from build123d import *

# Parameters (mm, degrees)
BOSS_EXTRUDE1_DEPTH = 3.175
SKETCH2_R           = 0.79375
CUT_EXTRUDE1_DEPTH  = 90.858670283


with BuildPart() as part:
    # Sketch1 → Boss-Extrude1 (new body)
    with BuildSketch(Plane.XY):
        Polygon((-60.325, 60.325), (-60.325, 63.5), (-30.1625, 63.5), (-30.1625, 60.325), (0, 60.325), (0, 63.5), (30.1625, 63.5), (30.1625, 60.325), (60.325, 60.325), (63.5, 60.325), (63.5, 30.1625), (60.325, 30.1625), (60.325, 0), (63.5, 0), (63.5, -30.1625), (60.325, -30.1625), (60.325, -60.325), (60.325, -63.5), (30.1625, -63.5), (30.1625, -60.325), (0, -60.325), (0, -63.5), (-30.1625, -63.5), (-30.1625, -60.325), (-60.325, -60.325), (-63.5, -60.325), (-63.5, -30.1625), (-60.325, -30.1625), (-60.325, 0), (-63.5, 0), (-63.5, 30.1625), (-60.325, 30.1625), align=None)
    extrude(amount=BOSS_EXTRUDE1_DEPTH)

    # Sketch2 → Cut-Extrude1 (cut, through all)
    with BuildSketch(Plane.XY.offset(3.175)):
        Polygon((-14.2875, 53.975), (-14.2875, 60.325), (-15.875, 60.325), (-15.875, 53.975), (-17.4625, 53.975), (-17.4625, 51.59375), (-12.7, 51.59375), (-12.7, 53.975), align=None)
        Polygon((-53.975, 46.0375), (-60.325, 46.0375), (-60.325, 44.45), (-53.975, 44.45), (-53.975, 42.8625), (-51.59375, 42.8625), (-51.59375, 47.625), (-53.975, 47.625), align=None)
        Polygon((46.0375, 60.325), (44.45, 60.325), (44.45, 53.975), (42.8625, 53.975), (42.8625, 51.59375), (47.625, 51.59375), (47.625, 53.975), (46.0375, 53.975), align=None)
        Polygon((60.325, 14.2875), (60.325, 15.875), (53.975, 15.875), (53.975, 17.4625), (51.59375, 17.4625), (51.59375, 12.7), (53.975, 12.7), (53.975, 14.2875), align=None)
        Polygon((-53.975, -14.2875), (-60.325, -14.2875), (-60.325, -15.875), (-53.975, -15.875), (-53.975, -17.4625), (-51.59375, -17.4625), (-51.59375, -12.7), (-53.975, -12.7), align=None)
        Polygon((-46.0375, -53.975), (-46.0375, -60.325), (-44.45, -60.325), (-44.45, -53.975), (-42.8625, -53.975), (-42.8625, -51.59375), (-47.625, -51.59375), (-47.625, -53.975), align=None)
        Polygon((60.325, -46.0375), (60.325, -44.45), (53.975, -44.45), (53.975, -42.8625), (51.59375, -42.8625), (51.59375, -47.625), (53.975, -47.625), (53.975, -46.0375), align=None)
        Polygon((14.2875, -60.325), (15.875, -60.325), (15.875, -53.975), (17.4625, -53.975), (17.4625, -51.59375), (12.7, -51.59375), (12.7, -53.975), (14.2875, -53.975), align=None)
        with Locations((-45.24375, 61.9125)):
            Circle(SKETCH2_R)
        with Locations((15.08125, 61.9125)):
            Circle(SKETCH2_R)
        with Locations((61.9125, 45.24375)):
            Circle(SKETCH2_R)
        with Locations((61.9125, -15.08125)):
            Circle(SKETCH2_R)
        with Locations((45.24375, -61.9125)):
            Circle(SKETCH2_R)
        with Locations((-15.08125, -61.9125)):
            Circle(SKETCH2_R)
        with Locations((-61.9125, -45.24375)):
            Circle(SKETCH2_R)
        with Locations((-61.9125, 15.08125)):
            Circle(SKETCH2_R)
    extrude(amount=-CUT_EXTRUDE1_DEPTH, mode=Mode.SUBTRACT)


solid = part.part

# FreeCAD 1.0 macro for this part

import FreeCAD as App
import Part
import Sketcher
Q = App.Units.Quantity


def add_polygon(sketch, points):
    """Adds a closed chain of lines whose ends are joined by coincident constraints."""
    first, n = sketch.GeometryCount, len(points)
    for a, b in zip(points, points[1:] + points[:1]):
        sketch.addGeometry(Part.LineSegment(App.Vector(*a, 0), App.Vector(*b, 0)), False)
    for i in range(n):
        sketch.addConstraint(Sketcher.Constraint("Coincident", first + i, 2, first + (i + 1) % n, 1))

doc = App.newDocument("Part")
body = doc.addObject("PartDesign::Body", "Body")

sketch1 = body.newObject("Sketcher::SketchObject", "Sketch")
sketch1.AttachmentSupport = (doc.getObject("XY_Plane"), [""])
sketch1.MapMode = "FlatFace"
add_polygon(sketch1, [(-60.3, 63.5), (-60.3, 30.2), (-63.5, 30.2), (-63.5, 0), (-60.3, 0), (-60.3, -30.2), (-63.5, -30.2), (-63.5, -60.3), (-30.2, -60.3), (-30.2, -63.5), (0, -63.5), (0, -60.3), (30.2, -60.3), (30.2, -63.5), (60.3, -63.5), (60.3, -30.2), (63.5, -30.2), (63.5, 0), (60.3, 0), (60.3, 30.2), (63.5, 30.2), (63.5, 60.3), (30.2, 60.3), (30.2, 63.5), (0, 63.5), (0, 60.3), (-30.2, 60.3), (-30.2, 63.5)])
sketch1.addConstraint(Sketcher.Constraint("Vertical", 0))
sketch1.addConstraint(Sketcher.Constraint("Horizontal", 1))
sketch1.addConstraint(Sketcher.Constraint("Vertical", 2))
sketch1.addConstraint(Sketcher.Constraint("Horizontal", 3))
sketch1.addConstraint(Sketcher.Constraint("Vertical", 4))
sketch1.addConstraint(Sketcher.Constraint("Horizontal", 5))
sketch1.addConstraint(Sketcher.Constraint("Vertical", 6))
sketch1.addConstraint(Sketcher.Constraint("Horizontal", 7))
sketch1.addConstraint(Sketcher.Constraint("Vertical", 8))
sketch1.addConstraint(Sketcher.Constraint("Horizontal", 9))
sketch1.addConstraint(Sketcher.Constraint("Vertical", 10))
sketch1.addConstraint(Sketcher.Constraint("Horizontal", 11))
sketch1.addConstraint(Sketcher.Constraint("Vertical", 12))
sketch1.addConstraint(Sketcher.Constraint("Horizontal", 13))
sketch1.addConstraint(Sketcher.Constraint("Vertical", 14))
sketch1.addConstraint(Sketcher.Constraint("Horizontal", 15))
sketch1.addConstraint(Sketcher.Constraint("Vertical", 16))
sketch1.addConstraint(Sketcher.Constraint("Horizontal", 17))
sketch1.addConstraint(Sketcher.Constraint("Vertical", 18))
sketch1.addConstraint(Sketcher.Constraint("Horizontal", 19))
sketch1.addConstraint(Sketcher.Constraint("Vertical", 20))
sketch1.addConstraint(Sketcher.Constraint("Horizontal", 21))
sketch1.addConstraint(Sketcher.Constraint("Vertical", 22))
sketch1.addConstraint(Sketcher.Constraint("Horizontal", 23))
sketch1.addConstraint(Sketcher.Constraint("Vertical", 24))
sketch1.addConstraint(Sketcher.Constraint("Horizontal", 25))
sketch1.addConstraint(Sketcher.Constraint("Vertical", 26))
sketch1.addConstraint(Sketcher.Constraint("Horizontal", 27))
sketch1.addConstraint(Sketcher.Constraint("Symmetric", 0, 2, 14, 2, -1, 1))
sketch1.addConstraint(Sketcher.Constraint("Symmetric", 2, 2, 16, 2, -1, 1))
sketch1.addConstraint(Sketcher.Constraint("Symmetric", 4, 2, 18, 2, -1, 1))
sketch1.addConstraint(Sketcher.Constraint("Symmetric", 6, 2, 20, 2, -1, 1))
sketch1.addConstraint(Sketcher.Constraint("Symmetric", 8, 2, 22, 2, -1, 1))
sketch1.addConstraint(Sketcher.Constraint("Symmetric", 10, 2, 24, 2, -1, 1))
sketch1.addConstraint(Sketcher.Constraint("Symmetric", 12, 2, 26, 2, -1, 1))
sketch1.addConstraint(Sketcher.Constraint("Symmetric", 7, 2, 11, 2, -2))
sketch1.addConstraint(Sketcher.Constraint("Symmetric", 4, 2, 14, 2, -2))
sketch1.addConstraint(Sketcher.Constraint("PointOnObject", 2, 2, -1))
sketch1.addConstraint(Sketcher.Constraint("PointOnObject", 9, 2, -2))
sketch1.addConstraint(Sketcher.Constraint("Horizontal", 9, 2, 12, 2))
sketch1.addConstraint(Sketcher.Constraint("Vertical", 2, 2, 5, 2))
sketch1.addConstraint(Sketcher.Constraint("Equal", 11, 13))
sketch1.addConstraint(Sketcher.Constraint("Equal", 21, 0))
sketch1.addConstraint(Sketcher.Constraint("Equal", 27, 2))
sketch1.addConstraint(Sketcher.Constraint("Equal", 4, 6))
sketch1.addConstraint(Sketcher.Constraint("DistanceX", 1, 2, -1, 1, Q("2.5 in")))
sketch1.addConstraint(Sketcher.Constraint("DistanceX", 1, 2, 1, 1, Q("0.125 in")))
pad1 = body.newObject("PartDesign::Pad", "Pad")
pad1.Profile = sketch1
pad1.Length = Q("0.125 in")

sketch2 = body.newObject("Sketcher::SketchObject", "Sketch001")
sketch2.AttachmentSupport = (doc.getObject("XY_Plane"), [""])
sketch2.MapMode = "FlatFace"
sketch2.AttachmentOffset = App.Placement(App.Vector(0, 0, 0.125 * 25.4), App.Rotation())
add_polygon(sketch2, [(-14.3, 54), (-14.3, 60.3), (-15.9, 60.3), (-15.9, 54), (-17.5, 54), (-17.5, 51.6), (-12.7, 51.6), (-12.7, 54)])
add_polygon(sketch2, [(-54, 46), (-60.3, 46), (-60.3, 44.5), (-54, 44.5), (-54, 42.9), (-51.6, 42.9), (-51.6, 47.6), (-54, 47.6)])
add_polygon(sketch2, [(46, 60.3), (44.5, 60.3), (44.5, 54), (42.9, 54), (42.9, 51.6), (47.6, 51.6), (47.6, 54), (46, 54)])
add_polygon(sketch2, [(60.3, 14.3), (60.3, 15.9), (54, 15.9), (54, 17.5), (51.6, 17.5), (51.6, 12.7), (54, 12.7), (54, 14.3)])
add_polygon(sketch2, [(-54, -14.3), (-60.3, -14.3), (-60.3, -15.9), (-54, -15.9), (-54, -17.5), (-51.6, -17.5), (-51.6, -12.7), (-54, -12.7)])
add_polygon(sketch2, [(-46, -54), (-46, -60.3), (-44.5, -60.3), (-44.5, -54), (-42.9, -54), (-42.9, -51.6), (-47.6, -51.6), (-47.6, -54)])
add_polygon(sketch2, [(60.3, -46), (60.3, -44.5), (54, -44.5), (54, -42.9), (51.6, -42.9), (51.6, -47.6), (54, -47.6), (54, -46)])
add_polygon(sketch2, [(14.3, -60.3), (15.9, -60.3), (15.9, -54), (17.5, -54), (17.5, -51.6), (12.7, -51.6), (12.7, -54), (14.3, -54)])
sketch2.addGeometry(Part.Circle(App.Vector(-45.2, 61.9, 0), App.Vector(0, 0, 1), 0.8), False)
sketch2.addGeometry(Part.Circle(App.Vector(15.1, 61.9, 0), App.Vector(0, 0, 1), 0.8), False)
sketch2.addGeometry(Part.Circle(App.Vector(61.9, 45.2, 0), App.Vector(0, 0, 1), 0.8), False)
sketch2.addGeometry(Part.Circle(App.Vector(61.9, -15.1, 0), App.Vector(0, 0, 1), 0.8), False)
sketch2.addGeometry(Part.Circle(App.Vector(45.2, -61.9, 0), App.Vector(0, 0, 1), 0.8), False)
sketch2.addGeometry(Part.Circle(App.Vector(-15.1, -61.9, 0), App.Vector(0, 0, 1), 0.8), False)
sketch2.addGeometry(Part.Circle(App.Vector(-61.9, -45.2, 0), App.Vector(0, 0, 1), 0.8), False)
sketch2.addGeometry(Part.Circle(App.Vector(-61.9, 15.1, 0), App.Vector(0, 0, 1), 0.8), False)
sketch2.addConstraint(Sketcher.Constraint("Vertical", 0))
sketch2.addConstraint(Sketcher.Constraint("Horizontal", 1))
sketch2.addConstraint(Sketcher.Constraint("Vertical", 2))
sketch2.addConstraint(Sketcher.Constraint("Horizontal", 3))
sketch2.addConstraint(Sketcher.Constraint("Vertical", 4))
sketch2.addConstraint(Sketcher.Constraint("Horizontal", 5))
sketch2.addConstraint(Sketcher.Constraint("Vertical", 6))
sketch2.addConstraint(Sketcher.Constraint("Horizontal", 7))
sketch2.addConstraint(Sketcher.Constraint("Horizontal", 8))
sketch2.addConstraint(Sketcher.Constraint("Vertical", 9))
sketch2.addConstraint(Sketcher.Constraint("Horizontal", 10))
sketch2.addConstraint(Sketcher.Constraint("Vertical", 11))
sketch2.addConstraint(Sketcher.Constraint("Horizontal", 12))
sketch2.addConstraint(Sketcher.Constraint("Vertical", 13))
sketch2.addConstraint(Sketcher.Constraint("Horizontal", 14))
sketch2.addConstraint(Sketcher.Constraint("Vertical", 15))
sketch2.addConstraint(Sketcher.Constraint("Horizontal", 16))
sketch2.addConstraint(Sketcher.Constraint("Vertical", 17))
sketch2.addConstraint(Sketcher.Constraint("Horizontal", 18))
sketch2.addConstraint(Sketcher.Constraint("Vertical", 19))
sketch2.addConstraint(Sketcher.Constraint("Horizontal", 20))
sketch2.addConstraint(Sketcher.Constraint("Vertical", 21))
sketch2.addConstraint(Sketcher.Constraint("Horizontal", 22))
sketch2.addConstraint(Sketcher.Constraint("Vertical", 23))
sketch2.addConstraint(Sketcher.Constraint("Vertical", 24))
sketch2.addConstraint(Sketcher.Constraint("Horizontal", 25))
sketch2.addConstraint(Sketcher.Constraint("Vertical", 26))
sketch2.addConstraint(Sketcher.Constraint("Horizontal", 27))
sketch2.addConstraint(Sketcher.Constraint("Vertical", 28))
sketch2.addConstraint(Sketcher.Constraint("Horizontal", 29))
sketch2.addConstraint(Sketcher.Constraint("Vertical", 30))
sketch2.addConstraint(Sketcher.Constraint("Horizontal", 31))
sketch2.addConstraint(Sketcher.Constraint("Horizontal", 32))
sketch2.addConstraint(Sketcher.Constraint("Vertical", 33))
sketch2.addConstraint(Sketcher.Constraint("Horizontal", 34))
sketch2.addConstraint(Sketcher.Constraint("Vertical", 35))
sketch2.addConstraint(Sketcher.Constraint("Horizontal", 36))
sketch2.addConstraint(Sketcher.Constraint("Vertical", 37))
sketch2.addConstraint(Sketcher.Constraint("Horizontal", 38))
sketch2.addConstraint(Sketcher.Constraint("Vertical", 39))
sketch2.addConstraint(Sketcher.Constraint("Vertical", 40))
sketch2.addConstraint(Sketcher.Constraint("Horizontal", 41))
sketch2.addConstraint(Sketcher.Constraint("Vertical", 42))
sketch2.addConstraint(Sketcher.Constraint("Horizontal", 43))
sketch2.addConstraint(Sketcher.Constraint("Vertical", 44))
sketch2.addConstraint(Sketcher.Constraint("Horizontal", 45))
sketch2.addConstraint(Sketcher.Constraint("Vertical", 46))
sketch2.addConstraint(Sketcher.Constraint("Horizontal", 47))
sketch2.addConstraint(Sketcher.Constraint("Vertical", 48))
sketch2.addConstraint(Sketcher.Constraint("Horizontal", 49))
sketch2.addConstraint(Sketcher.Constraint("Vertical", 50))
sketch2.addConstraint(Sketcher.Constraint("Horizontal", 51))
sketch2.addConstraint(Sketcher.Constraint("Vertical", 52))
sketch2.addConstraint(Sketcher.Constraint("Horizontal", 53))
sketch2.addConstraint(Sketcher.Constraint("Vertical", 54))
sketch2.addConstraint(Sketcher.Constraint("Horizontal", 55))
sketch2.addConstraint(Sketcher.Constraint("Horizontal", 56))
sketch2.addConstraint(Sketcher.Constraint("Vertical", 57))
sketch2.addConstraint(Sketcher.Constraint("Horizontal", 58))
sketch2.addConstraint(Sketcher.Constraint("Vertical", 59))
sketch2.addConstraint(Sketcher.Constraint("Horizontal", 60))
sketch2.addConstraint(Sketcher.Constraint("Vertical", 61))
sketch2.addConstraint(Sketcher.Constraint("Horizontal", 62))
sketch2.addConstraint(Sketcher.Constraint("Vertical", 63))
sketch2.addConstraint(Sketcher.Constraint("Equal", 64, 65))
sketch2.addConstraint(Sketcher.Constraint("Equal", 65, 66))
sketch2.addConstraint(Sketcher.Constraint("Equal", 66, 67))
sketch2.addConstraint(Sketcher.Constraint("Equal", 67, 68))
sketch2.addConstraint(Sketcher.Constraint("Equal", 68, 69))
sketch2.addConstraint(Sketcher.Constraint("Equal", 69, 70))
sketch2.addConstraint(Sketcher.Constraint("Equal", 70, 71))
sketch2.addConstraint(Sketcher.Constraint("Symmetric", 64, 3, 68, 3, -1, 1))
sketch2.addConstraint(Sketcher.Constraint("Symmetric", 65, 3, 69, 3, -1, 1))
sketch2.addConstraint(Sketcher.Constraint("Symmetric", 66, 3, 70, 3, -1, 1))
sketch2.addConstraint(Sketcher.Constraint("Symmetric", 67, 3, 71, 3, -1, 1))
sketch2.addConstraint(Sketcher.Constraint("Symmetric", 31, 2, 32, 2, -1, 1))
sketch2.addConstraint(Sketcher.Constraint("Symmetric", 25, 2, 34, 2, -1, 1))
sketch2.addConstraint(Sketcher.Constraint("Symmetric", 27, 2, 36, 2, -1, 1))
sketch2.addConstraint(Sketcher.Constraint("Symmetric", 29, 2, 38, 2, -1, 1))
sketch2.addConstraint(Sketcher.Constraint("Symmetric", 23, 2, 40, 2, -1, 1))
sketch2.addConstraint(Sketcher.Constraint("Symmetric", 17, 2, 42, 2, -1, 1))
sketch2.addConstraint(Sketcher.Constraint("Symmetric", 19, 2, 44, 2, -1, 1))
sketch2.addConstraint(Sketcher.Constraint("Symmetric", 21, 2, 46, 2, -1, 1))
sketch2.addConstraint(Sketcher.Constraint("Symmetric", 9, 2, 48, 2, -1, 1))
sketch2.addConstraint(Sketcher.Constraint("Symmetric", 11, 2, 50, 2, -1, 1))
sketch2.addConstraint(Sketcher.Constraint("Symmetric", 13, 2, 52, 2, -1, 1))
sketch2.addConstraint(Sketcher.Constraint("Symmetric", 15, 2, 54, 2, -1, 1))
sketch2.addConstraint(Sketcher.Constraint("Symmetric", 1, 2, 56, 2, -1, 1))
sketch2.addConstraint(Sketcher.Constraint("Symmetric", 3, 2, 58, 2, -1, 1))
sketch2.addConstraint(Sketcher.Constraint("Symmetric", 5, 2, 60, 2, -1, 1))
sketch2.addConstraint(Sketcher.Constraint("Symmetric", 7, 2, 62, 2, -1, 1))
sketch2.addConstraint(Sketcher.Constraint("Horizontal", 64, 3, 65, 3))
sketch2.addConstraint(Sketcher.Constraint("Horizontal", 3, 2, 6, 2))
sketch2.addConstraint(Sketcher.Constraint("Horizontal", 1, 2, 16, 2))
sketch2.addConstraint(Sketcher.Constraint("Horizontal", 7, 2, 17, 2))
sketch2.addConstraint(Sketcher.Constraint("Horizontal", 5, 2, 19, 2))
sketch2.addConstraint(Sketcher.Constraint("Horizontal", 18, 2, 21, 2))
sketch2.addConstraint(Sketcher.Constraint("Vertical", 66, 3, 67, 3))
sketch2.addConstraint(Sketcher.Constraint("Vertical", 11, 2, 14, 2))
sketch2.addConstraint(Sketcher.Constraint("Vertical", 26, 2, 29, 2))
sketch2.addConstraint(Sketcher.Constraint("Vertical", 9, 2, 32, 2))
sketch2.addConstraint(Sketcher.Constraint("Vertical", 15, 2, 34, 2))
sketch2.addConstraint(Sketcher.Constraint("Vertical", 13, 2, 36, 2))
sketch2.addConstraint(Sketcher.Constraint("Equal", 1, 3))
sketch2.addConstraint(Sketcher.Constraint("Equal", 3, 7))
sketch2.addConstraint(Sketcher.Constraint("Equal", 7, 16))
sketch2.addConstraint(Sketcher.Constraint("Equal", 16, 18))
sketch2.addConstraint(Sketcher.Constraint("Equal", 5, 20))
sketch2.addConstraint(Sketcher.Constraint("Equal", 55, 0))
sketch2.addConstraint(Sketcher.Constraint("Equal", 53, 4))
sketch2.addConstraint(Sketcher.Constraint("Equal", 62, 9))
sketch2.addConstraint(Sketcher.Constraint("Equal", 9, 11))
sketch2.addConstraint(Sketcher.Constraint("Equal", 60, 13))
sketch2.addConstraint(Sketcher.Constraint("Equal", 15, 24))
sketch2.addConstraint(Sketcher.Constraint("Equal", 24, 26))
sketch2.addConstraint(Sketcher.Constraint("Equal", 13, 28))
sketch2.addConstraint(Sketcher.Constraint("Diameter", 64, Q("0.0625 in")))
sketch2.addConstraint(Sketcher.Constraint("DistanceX", 8, 2, 8, 1, Q("0.25 in")))
sketch2.addConstraint(Sketcher.Constraint("DistanceX", 5, 2, -1, 1, Q("0.5 in")))
sketch2.addConstraint(Sketcher.Constraint("DistanceY", -1, 1, 28, 2, Q("0.5 in")))
sketch2.addConstraint(Sketcher.Constraint("DistanceX", 1, 2, 1, 1, Q("0.0625 in")))
sketch2.addConstraint(Sketcher.Constraint("DistanceX", 12, 1, 12, 2, Q("0.09375 in")))
sketch2.addConstraint(Sketcher.Constraint("DistanceY", -1, 1, 9, 2, Q("1.75 in")))
sketch2.addConstraint(Sketcher.Constraint("DistanceX", -1, 1, 16, 2, Q("1.75 in")))
sketch2.addConstraint(Sketcher.Constraint("DistanceX", 64, 3, -1, 1, Q("1.78125 in")))
sketch2.addConstraint(Sketcher.Constraint("DistanceY", -1, 1, 64, 3, Q("2.4375 in")))
sketch2.addConstraint(Sketcher.Constraint("DistanceX", -1, 1, 65, 3, Q("0.59375 in")))
sketch2.addConstraint(Sketcher.Constraint("DistanceX", -1, 1, 66, 3, Q("2.4375 in")))
sketch2.addConstraint(Sketcher.Constraint("DistanceY", -1, 1, 66, 3, Q("1.78125 in")))
sketch2.addConstraint(Sketcher.Constraint("DistanceY", 67, 3, -1, 1, Q("0.59375 in")))
sketch2.addConstraint(Sketcher.Constraint("DistanceY", -1, 1, 0, 2, Q("2.375 in")))
sketch2.addConstraint(Sketcher.Constraint("DistanceX", 8, 2, -1, 1, Q("2.375 in")))
pocket1 = body.newObject("PartDesign::Pocket", "Pocket")
pocket1.Profile = sketch2
pocket1.Type = "ThroughAll"

doc.recompute()
